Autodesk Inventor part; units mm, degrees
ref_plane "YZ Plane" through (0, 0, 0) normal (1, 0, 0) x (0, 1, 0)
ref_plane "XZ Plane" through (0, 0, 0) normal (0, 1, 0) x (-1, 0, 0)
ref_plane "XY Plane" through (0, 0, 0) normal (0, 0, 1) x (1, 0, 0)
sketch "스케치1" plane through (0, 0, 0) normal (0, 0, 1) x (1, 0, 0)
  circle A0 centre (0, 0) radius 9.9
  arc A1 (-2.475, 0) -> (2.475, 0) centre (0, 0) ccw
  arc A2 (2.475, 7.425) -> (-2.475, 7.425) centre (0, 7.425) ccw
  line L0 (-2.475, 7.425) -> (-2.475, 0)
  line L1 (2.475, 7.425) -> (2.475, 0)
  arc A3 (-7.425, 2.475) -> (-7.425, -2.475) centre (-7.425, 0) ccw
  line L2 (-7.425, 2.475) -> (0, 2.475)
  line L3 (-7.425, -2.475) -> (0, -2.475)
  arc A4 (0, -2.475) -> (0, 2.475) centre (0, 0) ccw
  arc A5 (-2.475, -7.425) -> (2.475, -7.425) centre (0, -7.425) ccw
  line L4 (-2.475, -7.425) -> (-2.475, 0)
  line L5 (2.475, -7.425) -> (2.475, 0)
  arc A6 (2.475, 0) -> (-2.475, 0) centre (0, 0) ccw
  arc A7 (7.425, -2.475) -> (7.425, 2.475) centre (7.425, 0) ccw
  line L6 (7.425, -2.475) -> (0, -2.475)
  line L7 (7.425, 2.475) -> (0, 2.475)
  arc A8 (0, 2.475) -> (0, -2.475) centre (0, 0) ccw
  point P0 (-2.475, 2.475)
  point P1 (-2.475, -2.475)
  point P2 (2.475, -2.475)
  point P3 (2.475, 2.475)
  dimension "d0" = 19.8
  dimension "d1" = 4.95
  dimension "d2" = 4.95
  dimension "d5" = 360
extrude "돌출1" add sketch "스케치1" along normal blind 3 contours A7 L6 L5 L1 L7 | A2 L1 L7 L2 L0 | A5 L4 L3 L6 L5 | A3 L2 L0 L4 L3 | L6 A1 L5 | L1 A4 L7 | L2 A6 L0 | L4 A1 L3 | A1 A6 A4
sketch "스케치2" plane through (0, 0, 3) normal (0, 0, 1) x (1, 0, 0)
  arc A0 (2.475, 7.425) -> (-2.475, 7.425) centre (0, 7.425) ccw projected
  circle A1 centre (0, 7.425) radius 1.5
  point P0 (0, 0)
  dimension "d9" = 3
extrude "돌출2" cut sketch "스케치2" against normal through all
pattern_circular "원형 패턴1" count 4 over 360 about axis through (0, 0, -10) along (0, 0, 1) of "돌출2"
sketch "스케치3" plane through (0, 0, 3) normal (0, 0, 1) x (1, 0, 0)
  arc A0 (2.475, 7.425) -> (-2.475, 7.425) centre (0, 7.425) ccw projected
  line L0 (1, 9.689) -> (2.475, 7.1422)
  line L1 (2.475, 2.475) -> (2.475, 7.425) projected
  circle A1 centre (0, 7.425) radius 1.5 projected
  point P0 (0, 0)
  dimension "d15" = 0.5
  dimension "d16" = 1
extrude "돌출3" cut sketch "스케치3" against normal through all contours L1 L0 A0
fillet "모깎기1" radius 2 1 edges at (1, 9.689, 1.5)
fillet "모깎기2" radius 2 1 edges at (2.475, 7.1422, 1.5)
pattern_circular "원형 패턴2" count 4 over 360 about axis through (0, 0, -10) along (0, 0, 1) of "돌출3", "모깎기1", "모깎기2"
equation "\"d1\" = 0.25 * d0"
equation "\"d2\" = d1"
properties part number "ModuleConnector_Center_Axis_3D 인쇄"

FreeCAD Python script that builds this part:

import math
import FreeCAD as App
import Part
import Sketcher
from FreeCAD import Vector
Q = App.Units.Quantity


def edges_at(feature, points):
    """Names of the edges that pass closest to the given points."""
    edges = feature.Shape.Edges
    near = lambda p: min(range(len(edges)), key=lambda i: edges[i].distToShape(Part.Vertex(*p))[0])
    return sorted({f"Edge{near(p) + 1}" for p in points})

doc = App.newDocument("Part")
params = doc.addObject("Spreadsheet::Sheet", "Params")
for row, (alias, value) in enumerate([
    ("sketch1_width", "4.95 mm"),
    ("pad1_length", "3 mm"),
    ("sketch2_diameter", "3 mm"),
    ("fillet_radius", "2 mm"),
    ("fillet2_radius", "2 mm"),
], start=1):
    params.set(f"A{row}", alias)
    params.set(f"B{row}", "=" + value)
    params.setAlias(f"B{row}", alias)

body = doc.addObject("PartDesign::Body", "Body")

sketch1 = body.newObject("Sketcher::SketchObject", "Sketch")
sketch1.AttachmentSupport = (doc.getObject("XY_Plane"), [""])
sketch1.MapMode = "FlatFace"
sketch1.addGeometry([
    Part.ArcOfCircle(Part.Circle(Vector(7.4, 0, 0), Vector(0, 0, 1), 2.5), math.radians(-90), math.radians(90)),
    Part.LineSegment(Vector(7.4, 2.5, 0), Vector(2.5, 2.5, 0)),
    Part.LineSegment(Vector(2.5, 2.5, 0), Vector(2.5, 7.4, 0)),
    Part.ArcOfCircle(Part.Circle(Vector(0, 7.4, 0), Vector(0, 0, 1), 2.5), math.radians(0), math.radians(180)),
    Part.LineSegment(Vector(-2.5, 7.4, 0), Vector(-2.5, 2.5, 0)),
    Part.LineSegment(Vector(-2.5, 2.5, 0), Vector(-7.4, 2.5, 0)),
    Part.ArcOfCircle(Part.Circle(Vector(-7.4, 0, 0), Vector(0, 0, 1), 2.5), math.radians(90), math.radians(270)),
    Part.LineSegment(Vector(-7.4, -2.5, 0), Vector(-2.5, -2.5, 0)),
    Part.LineSegment(Vector(-2.5, -2.5, 0), Vector(-2.5, -7.4, 0)),
    Part.ArcOfCircle(Part.Circle(Vector(0, -7.4, 0), Vector(0, 0, 1), 2.5), math.radians(180), math.radians(360)),
    Part.LineSegment(Vector(2.5, -7.4, 0), Vector(2.5, -2.5, 0)),
    Part.LineSegment(Vector(2.5, -2.5, 0), Vector(7.4, -2.5, 0)),
], False)
sketch1.addConstraint([
    Sketcher.Constraint("Tangent", 0, 2, 1, 1),
    Sketcher.Constraint("Coincident", 1, 2, 2, 1),
    Sketcher.Constraint("Tangent", 2, 2, 3, 1),
    Sketcher.Constraint("Tangent", 3, 2, 4, 1),
    Sketcher.Constraint("Coincident", 4, 2, 5, 1),
    Sketcher.Constraint("Tangent", 5, 2, 6, 1),
    Sketcher.Constraint("Tangent", 6, 2, 7, 1),
    Sketcher.Constraint("Coincident", 7, 2, 8, 1),
    Sketcher.Constraint("Tangent", 8, 2, 9, 1),
    Sketcher.Constraint("Tangent", 9, 2, 10, 1),
    Sketcher.Constraint("Coincident", 10, 2, 11, 1),
    Sketcher.Constraint("Tangent", 11, 2, 0, 1),
    Sketcher.Constraint("Horizontal", 1),
    Sketcher.Constraint("Vertical", 2),
    Sketcher.Constraint("Vertical", 4),
    Sketcher.Constraint("Horizontal", 5),
    Sketcher.Constraint("Horizontal", 7),
    Sketcher.Constraint("Vertical", 8),
    Sketcher.Constraint("Vertical", 10),
    Sketcher.Constraint("Horizontal", 11),
    Sketcher.Constraint("Equal", 0, 3),
    Sketcher.Constraint("Equal", 3, 6),
    Sketcher.Constraint("Equal", 6, 9),
    Sketcher.Constraint("Symmetric", 0, 3, 6, 3, -1, 1),
    Sketcher.Constraint("Symmetric", 3, 3, 9, 3, -1, 1),
    Sketcher.Constraint("Symmetric", 1, 2, 4, 2, -2),
    Sketcher.Constraint("Equal", 11, 2),
    Sketcher.Constraint("Radius", 0, Q("2.475 mm")),
    Sketcher.Constraint("DistanceX", 1, 2, 1, 1, Q("4.95 mm")),
])
sketch1.setExpression("Constraints[28]", "Params.sketch1_width")
pad1 = body.newObject("PartDesign::Pad", "Pad")
pad1.Profile = sketch1
pad1.setExpression("Length", "Params.pad1_length")

sketch2 = body.newObject("Sketcher::SketchObject", "Sketch001")
sketch2.AttachmentSupport = (doc.getObject("XY_Plane"), [""])
sketch2.MapMode = "FlatFace"
sketch2.AttachmentOffset = App.Placement(Vector(0, 0, 3), App.Rotation())
sketch2.addGeometry(Part.Circle(Vector(0, 7.4, 0), Vector(0, 0, 1), 1.5), False)
sketch2.addConstraint([
    Sketcher.Constraint("PointOnObject", 0, 3, -2),
    Sketcher.Constraint("Diameter", 0, Q("3 mm")),
    Sketcher.Constraint("DistanceY", -1, 1, 0, 3, Q("7.425 mm")),
])
sketch2.setExpression("Constraints[1]", "Params.sketch2_diameter")
pocket1 = body.newObject("PartDesign::Pocket", "Pocket")
pocket1.Profile = sketch2
pocket1.Type = "ThroughAll"
doc.recompute()

polarpattern = body.newObject("PartDesign::PolarPattern", "PolarPattern")
polarpattern.Originals = [pocket1]
polarpattern.Axis = (doc.getObject("Z_Axis"), [""])
polarpattern.Angle = 360
polarpattern.Occurrences = 4
body.Tip = polarpattern

sketch3 = body.newObject("Sketcher::SketchObject", "Sketch002")
sketch3.AttachmentSupport = (doc.getObject("XY_Plane"), [""])
sketch3.MapMode = "FlatFace"
sketch3.AttachmentOffset = App.Placement(Vector(0, 0, 3), App.Rotation())
sketch3.addGeometry([
    Part.LineSegment(Vector(2.48, 7.14, 0), Vector(2.48, 7.42, 0)),
    Part.ArcOfCircle(Part.Circle(Vector(0, 7.42, 0), Vector(0, 0, 1), 2.48), math.radians(0), math.radians(66)),
    Part.LineSegment(Vector(1, 9.69, 0), Vector(2.48, 7.14, 0)),
], False)
sketch3.addConstraint([
    Sketcher.Constraint("Tangent", 0, 2, 1, 1),
    Sketcher.Constraint("Coincident", 1, 2, 2, 1),
    Sketcher.Constraint("Coincident", 2, 2, 0, 1),
    Sketcher.Constraint("Vertical", 0),
    Sketcher.Constraint("PointOnObject", 1, 3, -2),
    Sketcher.Constraint("DistanceX", -1, 1, 1, 2, Q("1 mm")),
    Sketcher.Constraint("Radius", 1, Q("2.475 mm")),
    Sketcher.Constraint("Distance", 2, Q("2.943 mm")),
    Sketcher.Constraint("DistanceY", -1, 1, 1, 3, Q("7.425 mm")),
])
pocket2 = body.newObject("PartDesign::Pocket", "Pocket001")
pocket2.Profile = sketch3
pocket2.Type = "ThroughAll"
doc.recompute()

fillet = body.newObject("PartDesign::Fillet", "Fillet")
fillet.Base = (pocket2, edges_at(pocket2, [(1, 9.689, 1.5)]))
fillet.setExpression("Radius", "Params.fillet_radius")
doc.recompute()

fillet2 = body.newObject("PartDesign::Fillet", "Fillet001")
fillet2.Base = (fillet, edges_at(fillet, [(2.475, 7.142, 1.5)]))
fillet2.setExpression("Radius", "Params.fillet2_radius")
doc.recompute()

polarpattern2 = body.newObject("PartDesign::PolarPattern", "PolarPattern001")
polarpattern2.Originals = [pocket2, fillet, fillet2]
polarpattern2.Axis = (doc.getObject("Z_Axis"), [""])
polarpattern2.Angle = 360
polarpattern2.Occurrences = 4
body.Tip = polarpattern2

doc.recompute()
